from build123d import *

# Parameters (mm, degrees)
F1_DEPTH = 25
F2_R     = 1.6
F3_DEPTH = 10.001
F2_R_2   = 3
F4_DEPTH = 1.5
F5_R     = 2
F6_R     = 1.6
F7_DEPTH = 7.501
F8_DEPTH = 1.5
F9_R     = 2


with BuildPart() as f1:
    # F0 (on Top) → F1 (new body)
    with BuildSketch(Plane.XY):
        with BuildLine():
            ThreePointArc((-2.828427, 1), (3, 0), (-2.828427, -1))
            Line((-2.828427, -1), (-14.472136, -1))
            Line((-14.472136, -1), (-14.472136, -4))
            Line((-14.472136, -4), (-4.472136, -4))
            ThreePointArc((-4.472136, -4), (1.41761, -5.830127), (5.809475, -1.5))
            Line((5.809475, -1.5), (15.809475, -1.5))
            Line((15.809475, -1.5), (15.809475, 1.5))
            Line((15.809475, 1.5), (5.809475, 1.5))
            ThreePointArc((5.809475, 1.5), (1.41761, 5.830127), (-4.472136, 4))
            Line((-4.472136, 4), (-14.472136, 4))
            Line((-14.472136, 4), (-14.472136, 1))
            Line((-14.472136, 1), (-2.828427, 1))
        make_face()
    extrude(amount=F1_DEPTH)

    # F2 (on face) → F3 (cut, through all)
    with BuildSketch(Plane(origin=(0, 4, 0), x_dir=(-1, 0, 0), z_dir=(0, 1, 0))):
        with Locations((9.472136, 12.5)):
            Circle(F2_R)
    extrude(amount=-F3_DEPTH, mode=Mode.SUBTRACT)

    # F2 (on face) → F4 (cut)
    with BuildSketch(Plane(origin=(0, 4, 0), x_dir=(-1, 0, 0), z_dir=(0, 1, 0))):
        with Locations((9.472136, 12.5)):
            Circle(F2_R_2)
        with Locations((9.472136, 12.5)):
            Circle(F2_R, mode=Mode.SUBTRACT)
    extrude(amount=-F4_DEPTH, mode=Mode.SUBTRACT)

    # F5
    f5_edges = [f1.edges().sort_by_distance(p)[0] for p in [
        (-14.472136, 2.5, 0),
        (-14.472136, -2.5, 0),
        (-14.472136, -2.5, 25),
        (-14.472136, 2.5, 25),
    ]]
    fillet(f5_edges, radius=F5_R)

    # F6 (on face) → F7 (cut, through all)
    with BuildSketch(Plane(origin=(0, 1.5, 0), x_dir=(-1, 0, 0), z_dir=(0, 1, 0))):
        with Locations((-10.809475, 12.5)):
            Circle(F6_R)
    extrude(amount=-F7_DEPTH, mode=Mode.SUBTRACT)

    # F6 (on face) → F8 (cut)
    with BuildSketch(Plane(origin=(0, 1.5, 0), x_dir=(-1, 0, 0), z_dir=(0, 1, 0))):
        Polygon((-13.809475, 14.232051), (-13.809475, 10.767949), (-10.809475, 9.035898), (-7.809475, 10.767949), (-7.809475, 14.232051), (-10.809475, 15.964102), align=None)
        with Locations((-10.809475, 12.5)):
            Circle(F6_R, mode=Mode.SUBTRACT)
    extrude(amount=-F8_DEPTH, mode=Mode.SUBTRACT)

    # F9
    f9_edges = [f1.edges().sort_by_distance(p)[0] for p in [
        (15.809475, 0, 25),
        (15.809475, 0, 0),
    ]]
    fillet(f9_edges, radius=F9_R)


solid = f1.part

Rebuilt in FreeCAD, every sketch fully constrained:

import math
import FreeCAD as App
import Part
import Sketcher
Q = App.Units.Quantity


def edges_at(feature, points):
    """Names of the edges that pass closest to the given points."""
    edges = feature.Shape.Edges
    near = lambda p: min(range(len(edges)), key=lambda i: edges[i].distToShape(Part.Vertex(*p))[0])
    return sorted({f"Edge{near(p) + 1}" for p in points})

doc = App.newDocument("Part")
body = doc.addObject("PartDesign::Body", "Body")

sketch1 = body.newObject("Sketcher::SketchObject", "Sketch")
sketch1.AttachmentSupport = (doc.getObject("XY_Plane"), [""])
sketch1.MapMode = "FlatFace"
sketch1.addGeometry([
    Part.ArcOfCircle(Part.Circle(App.Vector(0, 0, 0), App.Vector(0, 0, 1), 3), math.radians(-160.528779), math.radians(160.528779)),
    Part.LineSegment(App.Vector(-2.828427, -1, 0), App.Vector(-14.472136, -1, 0)),
    Part.LineSegment(App.Vector(-14.472136, -1, 0), App.Vector(-14.472136, -4, 0)),
    Part.LineSegment(App.Vector(-14.472136, -4, 0), App.Vector(-4.472136, -4, 0)),
    Part.ArcOfCircle(Part.Circle(App.Vector(0, 0, 0), App.Vector(0, 0, 1), 6), math.radians(-138.189684), math.radians(-14.477514)),
    Part.LineSegment(App.Vector(5.809475, -1.5, 0), App.Vector(15.809475, -1.5, 0)),
    Part.LineSegment(App.Vector(15.809475, -1.5, 0), App.Vector(15.809475, 1.5, 0)),
    Part.LineSegment(App.Vector(15.809475, 1.5, 0), App.Vector(5.809475, 1.5, 0)),
    Part.ArcOfCircle(Part.Circle(App.Vector(0, 0, 0), App.Vector(0, 0, 1), 6), math.radians(14.477514), math.radians(138.189684)),
    Part.LineSegment(App.Vector(-4.472136, 4, 0), App.Vector(-14.472136, 4, 0)),
    Part.LineSegment(App.Vector(-14.472136, 4, 0), App.Vector(-14.472136, 1, 0)),
    Part.LineSegment(App.Vector(-14.472136, 1, 0), App.Vector(-2.828427, 1, 0)),
], False)
sketch1.addConstraint([
    Sketcher.Constraint("Coincident", 0, 1, 1, 1),
    Sketcher.Constraint("Coincident", 1, 2, 2, 1),
    Sketcher.Constraint("Coincident", 2, 2, 3, 1),
    Sketcher.Constraint("Coincident", 3, 2, 4, 1),
    Sketcher.Constraint("Coincident", 4, 2, 5, 1),
    Sketcher.Constraint("Coincident", 5, 2, 6, 1),
    Sketcher.Constraint("Coincident", 6, 2, 7, 1),
    Sketcher.Constraint("Coincident", 7, 2, 8, 1),
    Sketcher.Constraint("Coincident", 8, 2, 9, 1),
    Sketcher.Constraint("Coincident", 9, 2, 10, 1),
    Sketcher.Constraint("Coincident", 10, 2, 11, 1),
    Sketcher.Constraint("Coincident", 11, 2, 0, 2),
    Sketcher.Constraint("Horizontal", 1),
    Sketcher.Constraint("Vertical", 2),
    Sketcher.Constraint("Horizontal", 3),
    Sketcher.Constraint("Horizontal", 5),
    Sketcher.Constraint("Vertical", 6),
    Sketcher.Constraint("Horizontal", 7),
    Sketcher.Constraint("Horizontal", 9),
    Sketcher.Constraint("Vertical", 10),
    Sketcher.Constraint("Horizontal", 11),
    Sketcher.Constraint("Coincident", 0, 3, -1, 1),
    Sketcher.Constraint("Coincident", 4, 3, -1, 1),
    Sketcher.Constraint("Coincident", 8, 3, -1, 1),
    Sketcher.Constraint("Equal", 4, 8),
    Sketcher.Constraint("Symmetric", 2, 2, 9, 2, -1),
    Sketcher.Constraint("Vertical", 4, 2, 7, 2),
    Sketcher.Constraint("Vertical", 0, 1, 11, 2),
    Sketcher.Constraint("Equal", 3, 5),
    Sketcher.Constraint("Equal", 2, 6),
    Sketcher.Constraint("Radius", 0, Q("3 mm")),
    Sketcher.Constraint("Radius", 4, Q("6 mm")),
    Sketcher.Constraint("DistanceX", 3, 1, 3, 2, Q("10 mm")),
    Sketcher.Constraint("DistanceY", 2, 2, 2, 1, Q("3 mm")),
    Sketcher.Constraint("DistanceY", 0, 1, -1, 1, Q("1 mm")),
])
pad1 = body.newObject("PartDesign::Pad", "Pad")
pad1.Profile = sketch1
pad1.Length = 25

sketch2 = body.newObject("Sketcher::SketchObject", "Sketch001")
sketch2.AttachmentSupport = (doc.getObject("XZ_Plane"), [""])
sketch2.MapMode = "FlatFace"
sketch2.AttachmentOffset = App.Placement(App.Vector(0, 0, -4), App.Rotation())
sketch2.addGeometry(Part.Circle(App.Vector(-9.472136, 12.5, 0), App.Vector(0, 0, 1), 1.6), False)
sketch2.addConstraint([
    Sketcher.Constraint("Diameter", 0, Q("3.2 mm")),
    Sketcher.Constraint("DistanceY", -1, 1, 0, 3, Q("12.5 mm")),
    Sketcher.Constraint("DistanceX", 0, 3, -1, 1, Q("9.472136 mm")),
])
pocket1 = body.newObject("PartDesign::Pocket", "Pocket")
pocket1.Profile = sketch2
pocket1.Type = "ThroughAll"
pocket1.Reversed = True

sketch3 = body.newObject("Sketcher::SketchObject", "Sketch002")
sketch3.AttachmentSupport = (doc.getObject("XZ_Plane"), [""])
sketch3.MapMode = "FlatFace"
sketch3.AttachmentOffset = App.Placement(App.Vector(0, 0, -4), App.Rotation())
sketch3.addGeometry([
    Part.Circle(App.Vector(-9.472136, 12.5, 0), App.Vector(0, 0, 1), 3),
    Part.Circle(App.Vector(-9.472136, 12.5, 0), App.Vector(0, 0, 1), 1.6),
], False)
sketch3.addConstraint([
    Sketcher.Constraint("Coincident", 1, 3, 0, 3),
    Sketcher.Constraint("Diameter", 0, Q("6 mm")),
    Sketcher.Constraint("Diameter", 1, Q("3.2 mm")),
    Sketcher.Constraint("DistanceY", -1, 1, 0, 3, Q("12.5 mm")),
    Sketcher.Constraint("DistanceX", 0, 3, -1, 1, Q("9.472136 mm")),
])
pocket2 = body.newObject("PartDesign::Pocket", "Pocket001")
pocket2.Profile = sketch3
pocket2.Length = 1.5
pocket2.Reversed = True
doc.recompute()

fillet = body.newObject("PartDesign::Fillet", "Fillet")
fillet.Base = (pocket2, edges_at(pocket2, [
    (-14.472, 2.5, 0),
    (-14.472, -2.5, 0),
    (-14.472, -2.5, 25),
    (-14.472, 2.5, 25),
]))
fillet.Radius = 2

sketch4 = body.newObject("Sketcher::SketchObject", "Sketch003")
sketch4.AttachmentSupport = (doc.getObject("XZ_Plane"), [""])
sketch4.MapMode = "FlatFace"
sketch4.AttachmentOffset = App.Placement(App.Vector(0, 0, -1.5), App.Rotation())
sketch4.addGeometry(Part.Circle(App.Vector(10.809475, 12.5, 0), App.Vector(0, 0, 1), 1.6), False)
sketch4.addConstraint([
    Sketcher.Constraint("Diameter", 0, Q("3.2 mm")),
    Sketcher.Constraint("DistanceY", -1, 1, 0, 3, Q("12.5 mm")),
    Sketcher.Constraint("DistanceX", -1, 1, 0, 3, Q("10.809475 mm")),
])
pocket3 = body.newObject("PartDesign::Pocket", "Pocket002")
pocket3.Profile = sketch4
pocket3.Type = "ThroughAll"
pocket3.Reversed = True

sketch5 = body.newObject("Sketcher::SketchObject", "Sketch004")
sketch5.AttachmentSupport = (doc.getObject("XZ_Plane"), [""])
sketch5.MapMode = "FlatFace"
sketch5.AttachmentOffset = App.Placement(App.Vector(0, 0, -1.5), App.Rotation())
sketch5.addGeometry([
    Part.LineSegment(App.Vector(13.809475, 14.232051, 0), App.Vector(13.809475, 10.767949, 0)),
    Part.LineSegment(App.Vector(13.809475, 10.767949, 0), App.Vector(10.809475, 9.035898, 0)),
    Part.LineSegment(App.Vector(10.809475, 9.035898, 0), App.Vector(7.809475, 10.767949, 0)),
    Part.LineSegment(App.Vector(7.809475, 10.767949, 0), App.Vector(7.809475, 14.232051, 0)),
    Part.LineSegment(App.Vector(7.809475, 14.232051, 0), App.Vector(10.809475, 15.964102, 0)),
    Part.LineSegment(App.Vector(10.809475, 15.964102, 0), App.Vector(13.809475, 14.232051, 0)),
    Part.Circle(App.Vector(10.809475, 12.5, 0), App.Vector(0, 0, 1), 1.6),
], False)
sketch5.addConstraint([
    Sketcher.Constraint("Coincident", 0, 2, 1, 1),
    Sketcher.Constraint("Coincident", 1, 2, 2, 1),
    Sketcher.Constraint("Coincident", 2, 2, 3, 1),
    Sketcher.Constraint("Coincident", 3, 2, 4, 1),
    Sketcher.Constraint("Coincident", 4, 2, 5, 1),
    Sketcher.Constraint("Coincident", 5, 2, 0, 1),
    Sketcher.Constraint("Vertical", 0),
    Sketcher.Constraint("Vertical", 3),
    Sketcher.Constraint("Parallel", 1, 4),
    Sketcher.Constraint("Parallel", 2, 5),
    Sketcher.Constraint("Horizontal", 0, 2, 2, 2),
    Sketcher.Constraint("Horizontal", 3, 2, 5, 2),
    Sketcher.Constraint("Vertical", 6, 3, 1, 2),
    Sketcher.Constraint("Vertical", 1, 2, 4, 2),
    Sketcher.Constraint("Diameter", 6, Q("3.2 mm")),
    Sketcher.Constraint("Angle", 1, Q("-149.999997 deg")),
    Sketcher.Constraint("DistanceX", 6, 3, 0, 2, Q("3 mm")),
    Sketcher.Constraint("DistanceY", -1, 1, 6, 3, Q("12.5 mm")),
    Sketcher.Constraint("DistanceY", 0, 2, 0, 1, Q("3.464102 mm")),
    Sketcher.Constraint("DistanceY", -1, 1, 0, 2, Q("10.767949 mm")),
    Sketcher.Constraint("DistanceX", -1, 1, 6, 3, Q("10.809475 mm")),
])
pocket4 = body.newObject("PartDesign::Pocket", "Pocket003")
pocket4.Profile = sketch5
pocket4.Length = 1.5
pocket4.Reversed = True
doc.recompute()

fillet2 = body.newObject("PartDesign::Fillet", "Fillet001")
fillet2.Base = (pocket4, edges_at(pocket4, [(15.809, 0, 25), (15.809, 0, 0)]))
fillet2.Radius = 2

doc.recompute()
